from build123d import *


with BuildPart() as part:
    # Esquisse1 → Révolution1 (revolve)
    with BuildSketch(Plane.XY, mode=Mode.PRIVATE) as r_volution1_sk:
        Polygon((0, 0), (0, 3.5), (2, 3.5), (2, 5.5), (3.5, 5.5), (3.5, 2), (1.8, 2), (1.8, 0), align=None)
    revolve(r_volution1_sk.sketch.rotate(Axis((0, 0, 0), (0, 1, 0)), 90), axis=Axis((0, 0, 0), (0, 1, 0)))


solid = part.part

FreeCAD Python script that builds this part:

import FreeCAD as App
import Part
import Sketcher
from FreeCAD import Vector

doc = App.newDocument("Part")
body = doc.addObject("PartDesign::Body", "Body")

sketch1 = body.newObject("Sketcher::SketchObject", "Sketch")
sketch1.AttachmentSupport = (doc.getObject("XY_Plane"), [""])
sketch1.MapMode = "FlatFace"
sketch1.addGeometry([
    Part.LineSegment(Vector(0, 3.5, 0), Vector(0, 0, 0)),
    Part.LineSegment(Vector(0, 0, 0), Vector(1.8, 0, 0)),
    Part.LineSegment(Vector(1.8, 0, 0), Vector(1.8, 2, 0)),
    Part.LineSegment(Vector(1.8, 2, 0), Vector(3.5, 2, 0)),
    Part.LineSegment(Vector(3.5, 2, 0), Vector(3.5, 5.5, 0)),
    Part.LineSegment(Vector(3.5, 5.5, 0), Vector(2, 5.5, 0)),
    Part.LineSegment(Vector(2, 5.5, 0), Vector(2, 3.5, 0)),
    Part.LineSegment(Vector(2, 3.5, 0), Vector(0, 3.5, 0)),
], False)
sketch1.addConstraint([
    Sketcher.Constraint("Coincident", 0, 2, 1, 1),
    Sketcher.Constraint("Coincident", 1, 2, 2, 1),
    Sketcher.Constraint("Coincident", 2, 2, 3, 1),
    Sketcher.Constraint("Coincident", 3, 2, 4, 1),
    Sketcher.Constraint("Coincident", 4, 2, 5, 1),
    Sketcher.Constraint("Coincident", 5, 2, 6, 1),
    Sketcher.Constraint("Coincident", 6, 2, 7, 1),
    Sketcher.Constraint("Coincident", 7, 2, 0, 1),
    Sketcher.Constraint("Vertical", 0),
    Sketcher.Constraint("Horizontal", 1),
    Sketcher.Constraint("Vertical", 2),
    Sketcher.Constraint("Horizontal", 3),
    Sketcher.Constraint("Vertical", 4),
    Sketcher.Constraint("Horizontal", 5),
    Sketcher.Constraint("Vertical", 6),
    Sketcher.Constraint("Horizontal", 7),
    Sketcher.Constraint("Coincident", 0, 2, -1, 1),
    Sketcher.Constraint("Equal", 7, 2),
    Sketcher.Constraint("Equal", 0, 4),
    Sketcher.Constraint("DistanceX", 7, 2, 7, 1, 2.0),
    Sketcher.Constraint("DistanceX", 1, 1, 1, 2, 1.8),
    Sketcher.Constraint("DistanceX", 3, 1, 3, 2, 1.7),
    Sketcher.Constraint("DistanceY", 0, 2, 0, 1, 3.5),
])
revolution = body.newObject("PartDesign::Revolution", "Revolution")
revolution.Profile = sketch1
revolution.ReferenceAxis = (sketch1, ["V_Axis"])
revolution.Angle = 360

doc.recompute()
